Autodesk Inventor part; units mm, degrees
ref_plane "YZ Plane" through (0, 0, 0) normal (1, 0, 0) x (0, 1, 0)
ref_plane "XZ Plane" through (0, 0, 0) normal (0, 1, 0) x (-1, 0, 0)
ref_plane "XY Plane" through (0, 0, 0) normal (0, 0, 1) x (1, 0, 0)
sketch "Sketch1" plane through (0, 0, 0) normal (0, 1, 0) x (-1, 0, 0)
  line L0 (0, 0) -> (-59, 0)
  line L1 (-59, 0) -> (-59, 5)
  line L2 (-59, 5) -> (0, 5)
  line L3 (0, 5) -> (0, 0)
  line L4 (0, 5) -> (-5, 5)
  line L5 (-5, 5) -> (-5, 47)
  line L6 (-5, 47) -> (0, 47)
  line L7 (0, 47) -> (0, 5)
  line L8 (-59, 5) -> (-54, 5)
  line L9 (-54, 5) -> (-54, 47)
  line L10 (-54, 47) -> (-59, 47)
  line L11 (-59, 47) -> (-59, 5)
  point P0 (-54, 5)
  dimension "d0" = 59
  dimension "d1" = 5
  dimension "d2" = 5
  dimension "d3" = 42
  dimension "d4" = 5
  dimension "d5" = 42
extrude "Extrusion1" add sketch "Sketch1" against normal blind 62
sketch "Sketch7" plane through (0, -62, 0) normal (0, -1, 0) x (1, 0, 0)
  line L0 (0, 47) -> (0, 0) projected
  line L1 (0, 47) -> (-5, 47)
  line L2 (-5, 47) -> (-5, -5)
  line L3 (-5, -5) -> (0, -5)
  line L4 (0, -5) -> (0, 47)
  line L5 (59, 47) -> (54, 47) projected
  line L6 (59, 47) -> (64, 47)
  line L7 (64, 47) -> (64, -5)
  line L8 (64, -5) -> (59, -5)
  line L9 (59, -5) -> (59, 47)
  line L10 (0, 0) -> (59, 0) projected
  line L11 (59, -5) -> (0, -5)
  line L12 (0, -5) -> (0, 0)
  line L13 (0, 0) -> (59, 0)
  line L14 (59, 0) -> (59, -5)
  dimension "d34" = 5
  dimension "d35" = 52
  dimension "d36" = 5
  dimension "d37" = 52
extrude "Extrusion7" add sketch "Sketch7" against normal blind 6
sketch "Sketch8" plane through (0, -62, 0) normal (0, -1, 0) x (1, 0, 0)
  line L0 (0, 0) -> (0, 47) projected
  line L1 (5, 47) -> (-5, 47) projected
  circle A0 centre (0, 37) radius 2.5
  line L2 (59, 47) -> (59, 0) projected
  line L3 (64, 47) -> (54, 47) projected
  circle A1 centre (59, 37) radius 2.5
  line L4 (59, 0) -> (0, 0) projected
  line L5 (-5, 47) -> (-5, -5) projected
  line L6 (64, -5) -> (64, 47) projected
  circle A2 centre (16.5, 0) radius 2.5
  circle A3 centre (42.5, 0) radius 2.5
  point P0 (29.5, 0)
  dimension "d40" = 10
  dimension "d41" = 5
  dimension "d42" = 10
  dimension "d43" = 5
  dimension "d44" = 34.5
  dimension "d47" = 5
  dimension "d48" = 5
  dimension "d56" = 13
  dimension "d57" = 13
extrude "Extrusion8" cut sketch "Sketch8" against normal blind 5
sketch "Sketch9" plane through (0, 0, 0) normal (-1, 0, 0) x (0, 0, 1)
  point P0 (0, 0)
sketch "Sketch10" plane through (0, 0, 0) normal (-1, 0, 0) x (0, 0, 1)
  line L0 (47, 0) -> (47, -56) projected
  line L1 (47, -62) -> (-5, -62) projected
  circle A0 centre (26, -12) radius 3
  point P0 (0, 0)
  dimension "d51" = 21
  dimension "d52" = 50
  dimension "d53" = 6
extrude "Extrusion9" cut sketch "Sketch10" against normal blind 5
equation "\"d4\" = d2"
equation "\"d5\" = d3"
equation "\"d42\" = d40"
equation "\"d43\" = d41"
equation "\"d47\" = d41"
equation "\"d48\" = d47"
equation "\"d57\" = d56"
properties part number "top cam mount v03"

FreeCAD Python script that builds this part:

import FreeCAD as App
import Part
import Sketcher
Q = App.Units.Quantity


def add_polygon(sketch, points):
    """Adds a closed chain of lines whose ends are joined by coincident constraints."""
    first, n = sketch.GeometryCount, len(points)
    for a, b in zip(points, points[1:] + points[:1]):
        sketch.addGeometry(Part.LineSegment(App.Vector(*a, 0), App.Vector(*b, 0)), False)
    for i in range(n):
        sketch.addConstraint(Sketcher.Constraint("Coincident", first + i, 2, first + (i + 1) % n, 1))

doc = App.newDocument("Part")
body = doc.addObject("PartDesign::Body", "Body")

sketch1 = doc.addObject("Sketcher::SketchObject", "Sketch")
body.addObject(sketch1)
sketch1.AttachmentSupport = (doc.XZ_Plane, [""])
sketch1.MapMode = "FlatFace"
add_polygon(sketch1, [(59, 0), (0, 0), (0, 47), (5, 47), (5, 5), (54, 5), (54, 47), (59, 47)])
sketch1.addConstraint([
    Sketcher.Constraint("Horizontal", 0),
    Sketcher.Constraint("Vertical", 1),
    Sketcher.Constraint("Horizontal", 2),
    Sketcher.Constraint("Vertical", 3),
    Sketcher.Constraint("Horizontal", 4),
    Sketcher.Constraint("Vertical", 5),
    Sketcher.Constraint("Horizontal", 6),
    Sketcher.Constraint("Vertical", 7),
    Sketcher.Constraint("Coincident", 0, 2, -1, 1),
    Sketcher.Constraint("Horizontal", 2, 2, 5, 2),
    Sketcher.Constraint("Equal", 2, 6),
    Sketcher.Constraint("DistanceX", 0, 2, 0, 1, Q("59 mm")),
    Sketcher.Constraint("DistanceX", 2, 1, 2, 2, Q("5 mm")),
    Sketcher.Constraint("DistanceY", 3, 2, 3, 1, Q("42 mm")),
    Sketcher.Constraint("DistanceY", -1, 1, 3, 2, Q("5 mm")),
])
pad1 = doc.addObject("PartDesign::Pad", "Pad")
body.addObject(pad1)
pad1.Profile = sketch1
pad1.Length = 62

sketch2 = doc.addObject("Sketcher::SketchObject", "Sketch001")
body.addObject(sketch2)
sketch2.AttachmentSupport = (doc.XZ_Plane, [""])
sketch2.MapMode = "FlatFace"
sketch2.AttachmentOffset = App.Placement(App.Vector(0, 0, 62), App.Rotation())
add_polygon(sketch2, [(0, 0), (0, 47), (-5, 47), (-5, -5), (64, -5), (64, 47), (59, 47), (59, 0)])
sketch2.addConstraint([
    Sketcher.Constraint("Vertical", 0),
    Sketcher.Constraint("Horizontal", 1),
    Sketcher.Constraint("Vertical", 2),
    Sketcher.Constraint("Horizontal", 3),
    Sketcher.Constraint("Vertical", 4),
    Sketcher.Constraint("Horizontal", 5),
    Sketcher.Constraint("Vertical", 6),
    Sketcher.Constraint("Horizontal", 7),
    Sketcher.Constraint("Coincident", 7, 2, -1, 1),
    Sketcher.Constraint("Horizontal", 1, 2, 4, 2),
    Sketcher.Constraint("Equal", 1, 5),
    Sketcher.Constraint("DistanceX", 1, 2, 1, 1, Q("5 mm")),
    Sketcher.Constraint("DistanceY", 2, 2, 2, 1, Q("52 mm")),
    Sketcher.Constraint("DistanceY", 2, 2, -1, 1, Q("5 mm")),
    Sketcher.Constraint("DistanceX", 3, 1, 3, 2, Q("69 mm")),
])
pad2 = doc.addObject("PartDesign::Pad", "Pad001")
body.addObject(pad2)
pad2.Profile = sketch2
pad2.Length = 6
pad2.Reversed = True

sketch3 = doc.addObject("Sketcher::SketchObject", "Sketch002")
body.addObject(sketch3)
sketch3.AttachmentSupport = (doc.XZ_Plane, [""])
sketch3.MapMode = "FlatFace"
sketch3.AttachmentOffset = App.Placement(App.Vector(0, 0, 62), App.Rotation())
sketch3.addGeometry([
    Part.Circle(App.Vector(0, 37, 0), App.Vector(0, 0, 1), 2.5),
    Part.Circle(App.Vector(59, 37, 0), App.Vector(0, 0, 1), 2.5),
    Part.Circle(App.Vector(42.5, 0, 0), App.Vector(0, 0, 1), 2.5),
    Part.Circle(App.Vector(16.5, 0, 0), App.Vector(0, 0, 1), 2.5),
], False)
sketch3.addConstraint([
    Sketcher.Constraint("Equal", 0, 1),
    Sketcher.Constraint("Equal", 1, 2),
    Sketcher.Constraint("Equal", 2, 3),
    Sketcher.Constraint("PointOnObject", 0, 3, -2),
    Sketcher.Constraint("PointOnObject", 2, 3, -1),
    Sketcher.Constraint("PointOnObject", 3, 3, -1),
    Sketcher.Constraint("Horizontal", 0, 3, 1, 3),
    Sketcher.Constraint("Diameter", 0, Q("5 mm")),
    Sketcher.Constraint("DistanceY", -1, 1, 0, 3, Q("37 mm")),
    Sketcher.Constraint("DistanceX", -1, 1, 1, 3, Q("59 mm")),
    Sketcher.Constraint("DistanceX", 3, 3, 2, 3, Q("26 mm")),
    Sketcher.Constraint("DistanceX", -1, 1, 2, 3, Q("42.5 mm")),
])
pocket1 = doc.addObject("PartDesign::Pocket", "Pocket")
body.addObject(pocket1)
pocket1.Profile = sketch3
pocket1.Length = 5

sketch4 = doc.addObject("Sketcher::SketchObject", "Sketch003")
body.addObject(sketch4)
sketch4.AttachmentSupport = (doc.YZ_Plane, [""])
sketch4.MapMode = "FlatFace"
sketch4.addGeometry(Part.Circle(App.Vector(-12, 26, 0), App.Vector(0, 0, 1), 3), False)
sketch4.addConstraint([
    Sketcher.Constraint("Diameter", 0, Q("6 mm")),
    Sketcher.Constraint("DistanceX", 0, 3, -1, 1, Q("12 mm")),
    Sketcher.Constraint("DistanceY", -1, 1, 0, 3, Q("26 mm")),
])
pocket2 = doc.addObject("PartDesign::Pocket", "Pocket001")
body.addObject(pocket2)
pocket2.Profile = sketch4
pocket2.Length = 5
pocket2.Reversed = True

doc.recompute()
